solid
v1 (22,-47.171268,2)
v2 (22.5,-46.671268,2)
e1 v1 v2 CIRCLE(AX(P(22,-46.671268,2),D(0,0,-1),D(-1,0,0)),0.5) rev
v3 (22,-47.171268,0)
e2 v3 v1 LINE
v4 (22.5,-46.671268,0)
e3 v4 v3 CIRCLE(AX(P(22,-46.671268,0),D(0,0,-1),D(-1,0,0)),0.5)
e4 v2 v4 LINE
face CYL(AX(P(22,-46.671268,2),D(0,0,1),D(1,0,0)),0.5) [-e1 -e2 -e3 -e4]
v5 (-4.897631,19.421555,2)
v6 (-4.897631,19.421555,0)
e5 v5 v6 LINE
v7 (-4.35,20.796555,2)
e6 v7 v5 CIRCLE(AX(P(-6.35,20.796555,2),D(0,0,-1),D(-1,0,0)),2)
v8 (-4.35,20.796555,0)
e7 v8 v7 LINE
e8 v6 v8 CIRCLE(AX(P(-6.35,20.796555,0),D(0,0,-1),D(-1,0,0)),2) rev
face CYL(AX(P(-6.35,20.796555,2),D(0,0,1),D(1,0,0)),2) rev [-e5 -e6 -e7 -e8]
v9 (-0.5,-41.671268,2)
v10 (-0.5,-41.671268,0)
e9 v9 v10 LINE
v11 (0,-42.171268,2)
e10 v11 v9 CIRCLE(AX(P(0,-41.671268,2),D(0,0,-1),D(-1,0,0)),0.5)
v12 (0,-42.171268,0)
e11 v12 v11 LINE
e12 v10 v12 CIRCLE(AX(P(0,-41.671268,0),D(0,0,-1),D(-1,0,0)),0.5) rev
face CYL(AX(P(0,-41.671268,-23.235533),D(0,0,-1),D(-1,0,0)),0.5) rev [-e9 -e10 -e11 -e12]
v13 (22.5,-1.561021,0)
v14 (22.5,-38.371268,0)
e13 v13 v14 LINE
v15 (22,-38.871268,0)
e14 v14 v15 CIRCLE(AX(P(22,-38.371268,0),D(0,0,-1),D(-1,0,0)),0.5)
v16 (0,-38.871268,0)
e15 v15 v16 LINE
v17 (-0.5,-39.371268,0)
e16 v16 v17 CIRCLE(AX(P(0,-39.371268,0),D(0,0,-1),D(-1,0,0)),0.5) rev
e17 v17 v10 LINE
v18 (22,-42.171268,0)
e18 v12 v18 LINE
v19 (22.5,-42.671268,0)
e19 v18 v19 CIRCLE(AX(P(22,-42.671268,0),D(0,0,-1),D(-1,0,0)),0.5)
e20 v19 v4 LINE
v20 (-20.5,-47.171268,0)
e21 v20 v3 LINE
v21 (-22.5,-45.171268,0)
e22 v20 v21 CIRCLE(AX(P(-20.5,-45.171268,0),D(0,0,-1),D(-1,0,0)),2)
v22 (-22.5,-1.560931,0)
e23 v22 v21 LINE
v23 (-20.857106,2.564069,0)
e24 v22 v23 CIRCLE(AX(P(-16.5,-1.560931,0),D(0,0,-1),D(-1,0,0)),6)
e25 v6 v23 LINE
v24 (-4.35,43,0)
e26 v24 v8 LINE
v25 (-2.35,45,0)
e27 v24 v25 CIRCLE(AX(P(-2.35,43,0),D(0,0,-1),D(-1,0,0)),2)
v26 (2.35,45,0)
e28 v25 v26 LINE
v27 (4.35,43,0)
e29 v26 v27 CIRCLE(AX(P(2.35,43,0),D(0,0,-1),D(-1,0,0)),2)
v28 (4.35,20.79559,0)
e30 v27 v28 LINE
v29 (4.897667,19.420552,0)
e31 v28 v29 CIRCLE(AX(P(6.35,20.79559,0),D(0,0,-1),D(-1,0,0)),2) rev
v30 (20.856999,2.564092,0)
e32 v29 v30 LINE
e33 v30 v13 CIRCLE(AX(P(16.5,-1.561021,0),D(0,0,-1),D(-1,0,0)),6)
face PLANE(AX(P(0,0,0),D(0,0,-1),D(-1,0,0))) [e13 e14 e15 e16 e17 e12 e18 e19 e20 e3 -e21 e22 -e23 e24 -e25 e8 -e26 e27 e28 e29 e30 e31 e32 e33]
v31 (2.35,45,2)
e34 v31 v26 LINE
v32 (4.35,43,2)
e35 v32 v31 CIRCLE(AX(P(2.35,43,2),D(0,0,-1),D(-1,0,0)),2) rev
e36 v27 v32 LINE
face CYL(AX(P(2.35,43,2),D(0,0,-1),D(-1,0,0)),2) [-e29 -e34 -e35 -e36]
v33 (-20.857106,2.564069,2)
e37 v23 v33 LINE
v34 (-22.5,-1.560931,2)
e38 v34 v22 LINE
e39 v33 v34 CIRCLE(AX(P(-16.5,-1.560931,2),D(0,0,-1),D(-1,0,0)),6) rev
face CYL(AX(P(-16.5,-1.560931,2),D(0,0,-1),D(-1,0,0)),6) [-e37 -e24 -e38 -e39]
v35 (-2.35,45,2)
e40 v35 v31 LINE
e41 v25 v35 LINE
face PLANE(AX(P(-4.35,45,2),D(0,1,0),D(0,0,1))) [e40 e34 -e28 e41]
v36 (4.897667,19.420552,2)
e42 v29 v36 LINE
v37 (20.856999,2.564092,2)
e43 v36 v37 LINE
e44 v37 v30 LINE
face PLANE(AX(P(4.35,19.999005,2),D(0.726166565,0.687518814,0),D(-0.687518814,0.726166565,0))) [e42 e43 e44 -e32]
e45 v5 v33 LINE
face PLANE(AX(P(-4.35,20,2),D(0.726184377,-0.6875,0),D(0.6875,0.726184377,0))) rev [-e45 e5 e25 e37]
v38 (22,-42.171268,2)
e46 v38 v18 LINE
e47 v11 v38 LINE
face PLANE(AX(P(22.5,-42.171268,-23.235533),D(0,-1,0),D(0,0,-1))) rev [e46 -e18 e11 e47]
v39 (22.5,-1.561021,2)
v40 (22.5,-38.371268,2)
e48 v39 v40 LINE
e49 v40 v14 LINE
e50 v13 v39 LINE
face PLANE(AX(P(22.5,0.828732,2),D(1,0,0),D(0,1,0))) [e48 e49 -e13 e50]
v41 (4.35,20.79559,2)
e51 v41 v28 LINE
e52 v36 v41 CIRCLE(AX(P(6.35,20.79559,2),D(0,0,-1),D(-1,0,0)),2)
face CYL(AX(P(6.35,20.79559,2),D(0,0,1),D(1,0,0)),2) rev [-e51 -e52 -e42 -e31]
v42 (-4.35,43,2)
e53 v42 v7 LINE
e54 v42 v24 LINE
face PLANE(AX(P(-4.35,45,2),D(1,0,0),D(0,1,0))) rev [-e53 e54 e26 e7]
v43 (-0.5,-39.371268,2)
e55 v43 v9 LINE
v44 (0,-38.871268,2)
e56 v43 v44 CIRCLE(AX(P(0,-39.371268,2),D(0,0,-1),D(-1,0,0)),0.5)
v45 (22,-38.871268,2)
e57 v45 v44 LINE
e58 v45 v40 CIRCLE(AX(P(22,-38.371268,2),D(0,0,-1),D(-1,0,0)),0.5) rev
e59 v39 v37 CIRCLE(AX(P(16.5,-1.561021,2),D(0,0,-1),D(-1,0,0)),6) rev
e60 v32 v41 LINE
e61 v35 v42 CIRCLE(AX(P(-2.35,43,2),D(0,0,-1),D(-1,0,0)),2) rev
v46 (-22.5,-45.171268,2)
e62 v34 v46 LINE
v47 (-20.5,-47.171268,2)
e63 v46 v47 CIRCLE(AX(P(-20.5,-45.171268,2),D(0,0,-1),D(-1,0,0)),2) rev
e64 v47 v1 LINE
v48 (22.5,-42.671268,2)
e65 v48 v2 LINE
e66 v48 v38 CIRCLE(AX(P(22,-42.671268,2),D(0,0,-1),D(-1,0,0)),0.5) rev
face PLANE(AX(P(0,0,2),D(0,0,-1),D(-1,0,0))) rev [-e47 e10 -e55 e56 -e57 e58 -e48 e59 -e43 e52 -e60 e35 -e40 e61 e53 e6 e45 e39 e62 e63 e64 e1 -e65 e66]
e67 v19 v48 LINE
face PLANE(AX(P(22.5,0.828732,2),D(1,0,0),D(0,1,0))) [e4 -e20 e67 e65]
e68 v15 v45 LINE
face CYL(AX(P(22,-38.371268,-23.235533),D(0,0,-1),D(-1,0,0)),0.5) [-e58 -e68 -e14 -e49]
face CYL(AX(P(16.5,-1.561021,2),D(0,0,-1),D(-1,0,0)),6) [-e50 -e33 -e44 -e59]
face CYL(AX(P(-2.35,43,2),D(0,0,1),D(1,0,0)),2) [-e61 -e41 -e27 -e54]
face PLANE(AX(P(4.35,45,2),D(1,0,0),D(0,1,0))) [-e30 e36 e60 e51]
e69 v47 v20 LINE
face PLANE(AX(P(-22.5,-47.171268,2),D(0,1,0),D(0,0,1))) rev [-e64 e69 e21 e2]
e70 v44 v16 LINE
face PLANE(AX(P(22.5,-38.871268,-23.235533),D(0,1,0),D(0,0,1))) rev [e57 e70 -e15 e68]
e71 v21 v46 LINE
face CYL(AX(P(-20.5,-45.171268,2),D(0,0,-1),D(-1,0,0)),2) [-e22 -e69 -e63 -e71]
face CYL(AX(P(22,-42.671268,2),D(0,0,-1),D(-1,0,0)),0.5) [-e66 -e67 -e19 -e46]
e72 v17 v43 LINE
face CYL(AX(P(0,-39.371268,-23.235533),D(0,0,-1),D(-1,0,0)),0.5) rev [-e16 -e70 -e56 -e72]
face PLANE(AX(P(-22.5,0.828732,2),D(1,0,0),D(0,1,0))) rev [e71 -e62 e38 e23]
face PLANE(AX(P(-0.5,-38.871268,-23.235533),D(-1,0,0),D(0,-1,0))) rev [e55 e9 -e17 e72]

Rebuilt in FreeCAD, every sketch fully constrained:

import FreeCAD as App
import Part
import Sketcher
from FreeCAD import Vector
Q = App.Units.Quantity


def edges_at(feature, points):
    """Names of the edges that pass closest to the given points."""
    edges = feature.Shape.Edges
    near = lambda p: min(range(len(edges)), key=lambda i: edges[i].distToShape(Part.Vertex(*p))[0])
    return sorted({f"Edge{near(p) + 1}" for p in points})

doc = App.newDocument("Part")
body = doc.addObject("PartDesign::Body", "Body")

# Sketch on XY plane
sketch1 = body.newObject("Sketcher::SketchObject", "Sketch")
sketch1.AttachmentSupport = (doc.getObject("XY_Plane"), [""])
sketch1.MapMode = "FlatFace"
sketch1.addGeometry([
    Part.LineSegment(Vector(-4.35, 20, 0), Vector(-22.5, 0.828732, 0)),  # 0
    Part.LineSegment(Vector(-22.5, 0.828732, 0), Vector(-22.5, -47.171268, 0)),  # 1
    Part.LineSegment(Vector(-22.5, -47.171268, 0), Vector(22.5, -47.171268, 0)),  # 2
    Part.LineSegment(Vector(22.5, -47.171268, 0), Vector(22.5, 0.828732, 0)),  # 3
    Part.LineSegment(Vector(22.5, 0.828732, 0), Vector(4.35, 19.999005, 0)),  # 4
    Part.LineSegment(Vector(4.35, 19.999005, 0), Vector(4.35, 45, 0)),  # 5
    Part.LineSegment(Vector(4.35, 45, 0), Vector(-4.35, 45, 0)),  # 6
    Part.LineSegment(Vector(-4.35, 45, 0), Vector(-4.35, 20, 0)),  # 7
], False)
sketch1.addConstraint([
    Sketcher.Constraint("Coincident", 0, 2, 1, 1),
    Sketcher.Constraint("Coincident", 1, 2, 2, 1),
    Sketcher.Constraint("Coincident", 2, 2, 3, 1),
    Sketcher.Constraint("Coincident", 3, 2, 4, 1),
    Sketcher.Constraint("Coincident", 4, 2, 5, 1),
    Sketcher.Constraint("Coincident", 5, 2, 6, 1),
    Sketcher.Constraint("Coincident", 6, 2, 7, 1),
    Sketcher.Constraint("Coincident", 7, 2, 0, 1),
    Sketcher.Constraint("Vertical", 1),
    Sketcher.Constraint("Horizontal", 2),
    Sketcher.Constraint("Vertical", 3),
    Sketcher.Constraint("Vertical", 5),
    Sketcher.Constraint("Horizontal", 6),
    Sketcher.Constraint("Vertical", 7),
    Sketcher.Constraint("Symmetric", 0, 2, 3, 2, -2),
    Sketcher.Constraint("DistanceX", 2, 1, 2, 2, Q("45 mm")),
    Sketcher.Constraint("DistanceY", 1, 2, 1, 1, Q("48 mm")),
    Sketcher.Constraint("DistanceY", 7, 2, 7, 1, Q("25 mm")),
    Sketcher.Constraint("DistanceX", 6, 2, 6, 1, Q("8.7 mm")),
    Sketcher.Constraint("DistanceY", -1, 1, 5, 2, Q("45 mm")),
    Sketcher.Constraint("Distance", 0, Q("26.4 mm")),
    Sketcher.Constraint("DistanceX", -1, 1, 4, 2, Q("4.35 mm")),
    Sketcher.Constraint("DistanceY", 5, 1, 5, 2, Q("25.000995 mm")),
])
pad1 = body.newObject("PartDesign::Pad", "Pad")
pad1.Profile = sketch1
pad1.Length = 2

# Sketch on XY plane
sketch2 = body.newObject("Sketcher::SketchObject", "Sketch001")
sketch2.AttachmentSupport = (doc.getObject("XY_Plane"), [""])
sketch2.MapMode = "FlatFace"
sketch2.AttachmentOffset = App.Placement(Vector(0, 0, 2), App.Rotation())
sketch2.addGeometry([
    Part.LineSegment(Vector(-0.5, -38.871268, 0), Vector(-0.5, -42.171268, 0)),
    Part.LineSegment(Vector(-0.5, -42.171268, 0), Vector(22.5, -42.171268, 0)),
    Part.LineSegment(Vector(22.5, -42.171268, 0), Vector(22.5, -38.871268, 0)),
    Part.LineSegment(Vector(22.5, -38.871268, 0), Vector(-0.5, -38.871268, 0)),
], False)
sketch2.addConstraint([
    Sketcher.Constraint("Coincident", 0, 2, 1, 1),
    Sketcher.Constraint("Coincident", 1, 2, 2, 1),
    Sketcher.Constraint("Coincident", 2, 2, 3, 1),
    Sketcher.Constraint("Coincident", 3, 2, 0, 1),
    Sketcher.Constraint("Vertical", 0),
    Sketcher.Constraint("Horizontal", 1),
    Sketcher.Constraint("Vertical", 2),
    Sketcher.Constraint("Horizontal", 3),
    Sketcher.Constraint("DistanceX", 1, 1, 1, 2, Q("23 mm")),
    Sketcher.Constraint("DistanceY", 0, 2, 0, 1, Q("3.3 mm")),
    Sketcher.Constraint("DistanceX", 0, 2, -1, 1, Q("0.5 mm")),
    Sketcher.Constraint("DistanceY", 0, 2, -1, 1, Q("42.171268 mm")),
])
pocket1 = body.newObject("PartDesign::Pocket", "Pocket")
pocket1.Profile = sketch2
pocket1.Length = 2
doc.recompute()

fillet = body.newObject("PartDesign::Fillet", "Fillet")
fillet.Base = (pocket1, edges_at(pocket1, [
    (-4.35, 45, 1),
    (-4.35, 20, 1),
    (-22.5, -47.171, 1),
    (4.35, 19.999, 1),
    (4.35, 45, 1),
]))
fillet.Radius = 2
doc.recompute()

fillet2 = body.newObject("PartDesign::Fillet", "Fillet001")
fillet2.Base = (fillet, edges_at(fillet, [(-22.5, 0.829, 1), (22.5, 0.829, 1)]))
fillet2.Radius = 6
doc.recompute()

fillet3 = body.newObject("PartDesign::Fillet", "Fillet002")
fillet3.Base = (fillet2, edges_at(fillet2, [
    (22.5, -47.171, 1),
    (-0.5, -38.871, 1),
    (-0.5, -42.171, 1),
    (22.5, -42.171, 1),
    (22.5, -38.871, 1),
]))
fillet3.Radius = 0.5

doc.recompute()
